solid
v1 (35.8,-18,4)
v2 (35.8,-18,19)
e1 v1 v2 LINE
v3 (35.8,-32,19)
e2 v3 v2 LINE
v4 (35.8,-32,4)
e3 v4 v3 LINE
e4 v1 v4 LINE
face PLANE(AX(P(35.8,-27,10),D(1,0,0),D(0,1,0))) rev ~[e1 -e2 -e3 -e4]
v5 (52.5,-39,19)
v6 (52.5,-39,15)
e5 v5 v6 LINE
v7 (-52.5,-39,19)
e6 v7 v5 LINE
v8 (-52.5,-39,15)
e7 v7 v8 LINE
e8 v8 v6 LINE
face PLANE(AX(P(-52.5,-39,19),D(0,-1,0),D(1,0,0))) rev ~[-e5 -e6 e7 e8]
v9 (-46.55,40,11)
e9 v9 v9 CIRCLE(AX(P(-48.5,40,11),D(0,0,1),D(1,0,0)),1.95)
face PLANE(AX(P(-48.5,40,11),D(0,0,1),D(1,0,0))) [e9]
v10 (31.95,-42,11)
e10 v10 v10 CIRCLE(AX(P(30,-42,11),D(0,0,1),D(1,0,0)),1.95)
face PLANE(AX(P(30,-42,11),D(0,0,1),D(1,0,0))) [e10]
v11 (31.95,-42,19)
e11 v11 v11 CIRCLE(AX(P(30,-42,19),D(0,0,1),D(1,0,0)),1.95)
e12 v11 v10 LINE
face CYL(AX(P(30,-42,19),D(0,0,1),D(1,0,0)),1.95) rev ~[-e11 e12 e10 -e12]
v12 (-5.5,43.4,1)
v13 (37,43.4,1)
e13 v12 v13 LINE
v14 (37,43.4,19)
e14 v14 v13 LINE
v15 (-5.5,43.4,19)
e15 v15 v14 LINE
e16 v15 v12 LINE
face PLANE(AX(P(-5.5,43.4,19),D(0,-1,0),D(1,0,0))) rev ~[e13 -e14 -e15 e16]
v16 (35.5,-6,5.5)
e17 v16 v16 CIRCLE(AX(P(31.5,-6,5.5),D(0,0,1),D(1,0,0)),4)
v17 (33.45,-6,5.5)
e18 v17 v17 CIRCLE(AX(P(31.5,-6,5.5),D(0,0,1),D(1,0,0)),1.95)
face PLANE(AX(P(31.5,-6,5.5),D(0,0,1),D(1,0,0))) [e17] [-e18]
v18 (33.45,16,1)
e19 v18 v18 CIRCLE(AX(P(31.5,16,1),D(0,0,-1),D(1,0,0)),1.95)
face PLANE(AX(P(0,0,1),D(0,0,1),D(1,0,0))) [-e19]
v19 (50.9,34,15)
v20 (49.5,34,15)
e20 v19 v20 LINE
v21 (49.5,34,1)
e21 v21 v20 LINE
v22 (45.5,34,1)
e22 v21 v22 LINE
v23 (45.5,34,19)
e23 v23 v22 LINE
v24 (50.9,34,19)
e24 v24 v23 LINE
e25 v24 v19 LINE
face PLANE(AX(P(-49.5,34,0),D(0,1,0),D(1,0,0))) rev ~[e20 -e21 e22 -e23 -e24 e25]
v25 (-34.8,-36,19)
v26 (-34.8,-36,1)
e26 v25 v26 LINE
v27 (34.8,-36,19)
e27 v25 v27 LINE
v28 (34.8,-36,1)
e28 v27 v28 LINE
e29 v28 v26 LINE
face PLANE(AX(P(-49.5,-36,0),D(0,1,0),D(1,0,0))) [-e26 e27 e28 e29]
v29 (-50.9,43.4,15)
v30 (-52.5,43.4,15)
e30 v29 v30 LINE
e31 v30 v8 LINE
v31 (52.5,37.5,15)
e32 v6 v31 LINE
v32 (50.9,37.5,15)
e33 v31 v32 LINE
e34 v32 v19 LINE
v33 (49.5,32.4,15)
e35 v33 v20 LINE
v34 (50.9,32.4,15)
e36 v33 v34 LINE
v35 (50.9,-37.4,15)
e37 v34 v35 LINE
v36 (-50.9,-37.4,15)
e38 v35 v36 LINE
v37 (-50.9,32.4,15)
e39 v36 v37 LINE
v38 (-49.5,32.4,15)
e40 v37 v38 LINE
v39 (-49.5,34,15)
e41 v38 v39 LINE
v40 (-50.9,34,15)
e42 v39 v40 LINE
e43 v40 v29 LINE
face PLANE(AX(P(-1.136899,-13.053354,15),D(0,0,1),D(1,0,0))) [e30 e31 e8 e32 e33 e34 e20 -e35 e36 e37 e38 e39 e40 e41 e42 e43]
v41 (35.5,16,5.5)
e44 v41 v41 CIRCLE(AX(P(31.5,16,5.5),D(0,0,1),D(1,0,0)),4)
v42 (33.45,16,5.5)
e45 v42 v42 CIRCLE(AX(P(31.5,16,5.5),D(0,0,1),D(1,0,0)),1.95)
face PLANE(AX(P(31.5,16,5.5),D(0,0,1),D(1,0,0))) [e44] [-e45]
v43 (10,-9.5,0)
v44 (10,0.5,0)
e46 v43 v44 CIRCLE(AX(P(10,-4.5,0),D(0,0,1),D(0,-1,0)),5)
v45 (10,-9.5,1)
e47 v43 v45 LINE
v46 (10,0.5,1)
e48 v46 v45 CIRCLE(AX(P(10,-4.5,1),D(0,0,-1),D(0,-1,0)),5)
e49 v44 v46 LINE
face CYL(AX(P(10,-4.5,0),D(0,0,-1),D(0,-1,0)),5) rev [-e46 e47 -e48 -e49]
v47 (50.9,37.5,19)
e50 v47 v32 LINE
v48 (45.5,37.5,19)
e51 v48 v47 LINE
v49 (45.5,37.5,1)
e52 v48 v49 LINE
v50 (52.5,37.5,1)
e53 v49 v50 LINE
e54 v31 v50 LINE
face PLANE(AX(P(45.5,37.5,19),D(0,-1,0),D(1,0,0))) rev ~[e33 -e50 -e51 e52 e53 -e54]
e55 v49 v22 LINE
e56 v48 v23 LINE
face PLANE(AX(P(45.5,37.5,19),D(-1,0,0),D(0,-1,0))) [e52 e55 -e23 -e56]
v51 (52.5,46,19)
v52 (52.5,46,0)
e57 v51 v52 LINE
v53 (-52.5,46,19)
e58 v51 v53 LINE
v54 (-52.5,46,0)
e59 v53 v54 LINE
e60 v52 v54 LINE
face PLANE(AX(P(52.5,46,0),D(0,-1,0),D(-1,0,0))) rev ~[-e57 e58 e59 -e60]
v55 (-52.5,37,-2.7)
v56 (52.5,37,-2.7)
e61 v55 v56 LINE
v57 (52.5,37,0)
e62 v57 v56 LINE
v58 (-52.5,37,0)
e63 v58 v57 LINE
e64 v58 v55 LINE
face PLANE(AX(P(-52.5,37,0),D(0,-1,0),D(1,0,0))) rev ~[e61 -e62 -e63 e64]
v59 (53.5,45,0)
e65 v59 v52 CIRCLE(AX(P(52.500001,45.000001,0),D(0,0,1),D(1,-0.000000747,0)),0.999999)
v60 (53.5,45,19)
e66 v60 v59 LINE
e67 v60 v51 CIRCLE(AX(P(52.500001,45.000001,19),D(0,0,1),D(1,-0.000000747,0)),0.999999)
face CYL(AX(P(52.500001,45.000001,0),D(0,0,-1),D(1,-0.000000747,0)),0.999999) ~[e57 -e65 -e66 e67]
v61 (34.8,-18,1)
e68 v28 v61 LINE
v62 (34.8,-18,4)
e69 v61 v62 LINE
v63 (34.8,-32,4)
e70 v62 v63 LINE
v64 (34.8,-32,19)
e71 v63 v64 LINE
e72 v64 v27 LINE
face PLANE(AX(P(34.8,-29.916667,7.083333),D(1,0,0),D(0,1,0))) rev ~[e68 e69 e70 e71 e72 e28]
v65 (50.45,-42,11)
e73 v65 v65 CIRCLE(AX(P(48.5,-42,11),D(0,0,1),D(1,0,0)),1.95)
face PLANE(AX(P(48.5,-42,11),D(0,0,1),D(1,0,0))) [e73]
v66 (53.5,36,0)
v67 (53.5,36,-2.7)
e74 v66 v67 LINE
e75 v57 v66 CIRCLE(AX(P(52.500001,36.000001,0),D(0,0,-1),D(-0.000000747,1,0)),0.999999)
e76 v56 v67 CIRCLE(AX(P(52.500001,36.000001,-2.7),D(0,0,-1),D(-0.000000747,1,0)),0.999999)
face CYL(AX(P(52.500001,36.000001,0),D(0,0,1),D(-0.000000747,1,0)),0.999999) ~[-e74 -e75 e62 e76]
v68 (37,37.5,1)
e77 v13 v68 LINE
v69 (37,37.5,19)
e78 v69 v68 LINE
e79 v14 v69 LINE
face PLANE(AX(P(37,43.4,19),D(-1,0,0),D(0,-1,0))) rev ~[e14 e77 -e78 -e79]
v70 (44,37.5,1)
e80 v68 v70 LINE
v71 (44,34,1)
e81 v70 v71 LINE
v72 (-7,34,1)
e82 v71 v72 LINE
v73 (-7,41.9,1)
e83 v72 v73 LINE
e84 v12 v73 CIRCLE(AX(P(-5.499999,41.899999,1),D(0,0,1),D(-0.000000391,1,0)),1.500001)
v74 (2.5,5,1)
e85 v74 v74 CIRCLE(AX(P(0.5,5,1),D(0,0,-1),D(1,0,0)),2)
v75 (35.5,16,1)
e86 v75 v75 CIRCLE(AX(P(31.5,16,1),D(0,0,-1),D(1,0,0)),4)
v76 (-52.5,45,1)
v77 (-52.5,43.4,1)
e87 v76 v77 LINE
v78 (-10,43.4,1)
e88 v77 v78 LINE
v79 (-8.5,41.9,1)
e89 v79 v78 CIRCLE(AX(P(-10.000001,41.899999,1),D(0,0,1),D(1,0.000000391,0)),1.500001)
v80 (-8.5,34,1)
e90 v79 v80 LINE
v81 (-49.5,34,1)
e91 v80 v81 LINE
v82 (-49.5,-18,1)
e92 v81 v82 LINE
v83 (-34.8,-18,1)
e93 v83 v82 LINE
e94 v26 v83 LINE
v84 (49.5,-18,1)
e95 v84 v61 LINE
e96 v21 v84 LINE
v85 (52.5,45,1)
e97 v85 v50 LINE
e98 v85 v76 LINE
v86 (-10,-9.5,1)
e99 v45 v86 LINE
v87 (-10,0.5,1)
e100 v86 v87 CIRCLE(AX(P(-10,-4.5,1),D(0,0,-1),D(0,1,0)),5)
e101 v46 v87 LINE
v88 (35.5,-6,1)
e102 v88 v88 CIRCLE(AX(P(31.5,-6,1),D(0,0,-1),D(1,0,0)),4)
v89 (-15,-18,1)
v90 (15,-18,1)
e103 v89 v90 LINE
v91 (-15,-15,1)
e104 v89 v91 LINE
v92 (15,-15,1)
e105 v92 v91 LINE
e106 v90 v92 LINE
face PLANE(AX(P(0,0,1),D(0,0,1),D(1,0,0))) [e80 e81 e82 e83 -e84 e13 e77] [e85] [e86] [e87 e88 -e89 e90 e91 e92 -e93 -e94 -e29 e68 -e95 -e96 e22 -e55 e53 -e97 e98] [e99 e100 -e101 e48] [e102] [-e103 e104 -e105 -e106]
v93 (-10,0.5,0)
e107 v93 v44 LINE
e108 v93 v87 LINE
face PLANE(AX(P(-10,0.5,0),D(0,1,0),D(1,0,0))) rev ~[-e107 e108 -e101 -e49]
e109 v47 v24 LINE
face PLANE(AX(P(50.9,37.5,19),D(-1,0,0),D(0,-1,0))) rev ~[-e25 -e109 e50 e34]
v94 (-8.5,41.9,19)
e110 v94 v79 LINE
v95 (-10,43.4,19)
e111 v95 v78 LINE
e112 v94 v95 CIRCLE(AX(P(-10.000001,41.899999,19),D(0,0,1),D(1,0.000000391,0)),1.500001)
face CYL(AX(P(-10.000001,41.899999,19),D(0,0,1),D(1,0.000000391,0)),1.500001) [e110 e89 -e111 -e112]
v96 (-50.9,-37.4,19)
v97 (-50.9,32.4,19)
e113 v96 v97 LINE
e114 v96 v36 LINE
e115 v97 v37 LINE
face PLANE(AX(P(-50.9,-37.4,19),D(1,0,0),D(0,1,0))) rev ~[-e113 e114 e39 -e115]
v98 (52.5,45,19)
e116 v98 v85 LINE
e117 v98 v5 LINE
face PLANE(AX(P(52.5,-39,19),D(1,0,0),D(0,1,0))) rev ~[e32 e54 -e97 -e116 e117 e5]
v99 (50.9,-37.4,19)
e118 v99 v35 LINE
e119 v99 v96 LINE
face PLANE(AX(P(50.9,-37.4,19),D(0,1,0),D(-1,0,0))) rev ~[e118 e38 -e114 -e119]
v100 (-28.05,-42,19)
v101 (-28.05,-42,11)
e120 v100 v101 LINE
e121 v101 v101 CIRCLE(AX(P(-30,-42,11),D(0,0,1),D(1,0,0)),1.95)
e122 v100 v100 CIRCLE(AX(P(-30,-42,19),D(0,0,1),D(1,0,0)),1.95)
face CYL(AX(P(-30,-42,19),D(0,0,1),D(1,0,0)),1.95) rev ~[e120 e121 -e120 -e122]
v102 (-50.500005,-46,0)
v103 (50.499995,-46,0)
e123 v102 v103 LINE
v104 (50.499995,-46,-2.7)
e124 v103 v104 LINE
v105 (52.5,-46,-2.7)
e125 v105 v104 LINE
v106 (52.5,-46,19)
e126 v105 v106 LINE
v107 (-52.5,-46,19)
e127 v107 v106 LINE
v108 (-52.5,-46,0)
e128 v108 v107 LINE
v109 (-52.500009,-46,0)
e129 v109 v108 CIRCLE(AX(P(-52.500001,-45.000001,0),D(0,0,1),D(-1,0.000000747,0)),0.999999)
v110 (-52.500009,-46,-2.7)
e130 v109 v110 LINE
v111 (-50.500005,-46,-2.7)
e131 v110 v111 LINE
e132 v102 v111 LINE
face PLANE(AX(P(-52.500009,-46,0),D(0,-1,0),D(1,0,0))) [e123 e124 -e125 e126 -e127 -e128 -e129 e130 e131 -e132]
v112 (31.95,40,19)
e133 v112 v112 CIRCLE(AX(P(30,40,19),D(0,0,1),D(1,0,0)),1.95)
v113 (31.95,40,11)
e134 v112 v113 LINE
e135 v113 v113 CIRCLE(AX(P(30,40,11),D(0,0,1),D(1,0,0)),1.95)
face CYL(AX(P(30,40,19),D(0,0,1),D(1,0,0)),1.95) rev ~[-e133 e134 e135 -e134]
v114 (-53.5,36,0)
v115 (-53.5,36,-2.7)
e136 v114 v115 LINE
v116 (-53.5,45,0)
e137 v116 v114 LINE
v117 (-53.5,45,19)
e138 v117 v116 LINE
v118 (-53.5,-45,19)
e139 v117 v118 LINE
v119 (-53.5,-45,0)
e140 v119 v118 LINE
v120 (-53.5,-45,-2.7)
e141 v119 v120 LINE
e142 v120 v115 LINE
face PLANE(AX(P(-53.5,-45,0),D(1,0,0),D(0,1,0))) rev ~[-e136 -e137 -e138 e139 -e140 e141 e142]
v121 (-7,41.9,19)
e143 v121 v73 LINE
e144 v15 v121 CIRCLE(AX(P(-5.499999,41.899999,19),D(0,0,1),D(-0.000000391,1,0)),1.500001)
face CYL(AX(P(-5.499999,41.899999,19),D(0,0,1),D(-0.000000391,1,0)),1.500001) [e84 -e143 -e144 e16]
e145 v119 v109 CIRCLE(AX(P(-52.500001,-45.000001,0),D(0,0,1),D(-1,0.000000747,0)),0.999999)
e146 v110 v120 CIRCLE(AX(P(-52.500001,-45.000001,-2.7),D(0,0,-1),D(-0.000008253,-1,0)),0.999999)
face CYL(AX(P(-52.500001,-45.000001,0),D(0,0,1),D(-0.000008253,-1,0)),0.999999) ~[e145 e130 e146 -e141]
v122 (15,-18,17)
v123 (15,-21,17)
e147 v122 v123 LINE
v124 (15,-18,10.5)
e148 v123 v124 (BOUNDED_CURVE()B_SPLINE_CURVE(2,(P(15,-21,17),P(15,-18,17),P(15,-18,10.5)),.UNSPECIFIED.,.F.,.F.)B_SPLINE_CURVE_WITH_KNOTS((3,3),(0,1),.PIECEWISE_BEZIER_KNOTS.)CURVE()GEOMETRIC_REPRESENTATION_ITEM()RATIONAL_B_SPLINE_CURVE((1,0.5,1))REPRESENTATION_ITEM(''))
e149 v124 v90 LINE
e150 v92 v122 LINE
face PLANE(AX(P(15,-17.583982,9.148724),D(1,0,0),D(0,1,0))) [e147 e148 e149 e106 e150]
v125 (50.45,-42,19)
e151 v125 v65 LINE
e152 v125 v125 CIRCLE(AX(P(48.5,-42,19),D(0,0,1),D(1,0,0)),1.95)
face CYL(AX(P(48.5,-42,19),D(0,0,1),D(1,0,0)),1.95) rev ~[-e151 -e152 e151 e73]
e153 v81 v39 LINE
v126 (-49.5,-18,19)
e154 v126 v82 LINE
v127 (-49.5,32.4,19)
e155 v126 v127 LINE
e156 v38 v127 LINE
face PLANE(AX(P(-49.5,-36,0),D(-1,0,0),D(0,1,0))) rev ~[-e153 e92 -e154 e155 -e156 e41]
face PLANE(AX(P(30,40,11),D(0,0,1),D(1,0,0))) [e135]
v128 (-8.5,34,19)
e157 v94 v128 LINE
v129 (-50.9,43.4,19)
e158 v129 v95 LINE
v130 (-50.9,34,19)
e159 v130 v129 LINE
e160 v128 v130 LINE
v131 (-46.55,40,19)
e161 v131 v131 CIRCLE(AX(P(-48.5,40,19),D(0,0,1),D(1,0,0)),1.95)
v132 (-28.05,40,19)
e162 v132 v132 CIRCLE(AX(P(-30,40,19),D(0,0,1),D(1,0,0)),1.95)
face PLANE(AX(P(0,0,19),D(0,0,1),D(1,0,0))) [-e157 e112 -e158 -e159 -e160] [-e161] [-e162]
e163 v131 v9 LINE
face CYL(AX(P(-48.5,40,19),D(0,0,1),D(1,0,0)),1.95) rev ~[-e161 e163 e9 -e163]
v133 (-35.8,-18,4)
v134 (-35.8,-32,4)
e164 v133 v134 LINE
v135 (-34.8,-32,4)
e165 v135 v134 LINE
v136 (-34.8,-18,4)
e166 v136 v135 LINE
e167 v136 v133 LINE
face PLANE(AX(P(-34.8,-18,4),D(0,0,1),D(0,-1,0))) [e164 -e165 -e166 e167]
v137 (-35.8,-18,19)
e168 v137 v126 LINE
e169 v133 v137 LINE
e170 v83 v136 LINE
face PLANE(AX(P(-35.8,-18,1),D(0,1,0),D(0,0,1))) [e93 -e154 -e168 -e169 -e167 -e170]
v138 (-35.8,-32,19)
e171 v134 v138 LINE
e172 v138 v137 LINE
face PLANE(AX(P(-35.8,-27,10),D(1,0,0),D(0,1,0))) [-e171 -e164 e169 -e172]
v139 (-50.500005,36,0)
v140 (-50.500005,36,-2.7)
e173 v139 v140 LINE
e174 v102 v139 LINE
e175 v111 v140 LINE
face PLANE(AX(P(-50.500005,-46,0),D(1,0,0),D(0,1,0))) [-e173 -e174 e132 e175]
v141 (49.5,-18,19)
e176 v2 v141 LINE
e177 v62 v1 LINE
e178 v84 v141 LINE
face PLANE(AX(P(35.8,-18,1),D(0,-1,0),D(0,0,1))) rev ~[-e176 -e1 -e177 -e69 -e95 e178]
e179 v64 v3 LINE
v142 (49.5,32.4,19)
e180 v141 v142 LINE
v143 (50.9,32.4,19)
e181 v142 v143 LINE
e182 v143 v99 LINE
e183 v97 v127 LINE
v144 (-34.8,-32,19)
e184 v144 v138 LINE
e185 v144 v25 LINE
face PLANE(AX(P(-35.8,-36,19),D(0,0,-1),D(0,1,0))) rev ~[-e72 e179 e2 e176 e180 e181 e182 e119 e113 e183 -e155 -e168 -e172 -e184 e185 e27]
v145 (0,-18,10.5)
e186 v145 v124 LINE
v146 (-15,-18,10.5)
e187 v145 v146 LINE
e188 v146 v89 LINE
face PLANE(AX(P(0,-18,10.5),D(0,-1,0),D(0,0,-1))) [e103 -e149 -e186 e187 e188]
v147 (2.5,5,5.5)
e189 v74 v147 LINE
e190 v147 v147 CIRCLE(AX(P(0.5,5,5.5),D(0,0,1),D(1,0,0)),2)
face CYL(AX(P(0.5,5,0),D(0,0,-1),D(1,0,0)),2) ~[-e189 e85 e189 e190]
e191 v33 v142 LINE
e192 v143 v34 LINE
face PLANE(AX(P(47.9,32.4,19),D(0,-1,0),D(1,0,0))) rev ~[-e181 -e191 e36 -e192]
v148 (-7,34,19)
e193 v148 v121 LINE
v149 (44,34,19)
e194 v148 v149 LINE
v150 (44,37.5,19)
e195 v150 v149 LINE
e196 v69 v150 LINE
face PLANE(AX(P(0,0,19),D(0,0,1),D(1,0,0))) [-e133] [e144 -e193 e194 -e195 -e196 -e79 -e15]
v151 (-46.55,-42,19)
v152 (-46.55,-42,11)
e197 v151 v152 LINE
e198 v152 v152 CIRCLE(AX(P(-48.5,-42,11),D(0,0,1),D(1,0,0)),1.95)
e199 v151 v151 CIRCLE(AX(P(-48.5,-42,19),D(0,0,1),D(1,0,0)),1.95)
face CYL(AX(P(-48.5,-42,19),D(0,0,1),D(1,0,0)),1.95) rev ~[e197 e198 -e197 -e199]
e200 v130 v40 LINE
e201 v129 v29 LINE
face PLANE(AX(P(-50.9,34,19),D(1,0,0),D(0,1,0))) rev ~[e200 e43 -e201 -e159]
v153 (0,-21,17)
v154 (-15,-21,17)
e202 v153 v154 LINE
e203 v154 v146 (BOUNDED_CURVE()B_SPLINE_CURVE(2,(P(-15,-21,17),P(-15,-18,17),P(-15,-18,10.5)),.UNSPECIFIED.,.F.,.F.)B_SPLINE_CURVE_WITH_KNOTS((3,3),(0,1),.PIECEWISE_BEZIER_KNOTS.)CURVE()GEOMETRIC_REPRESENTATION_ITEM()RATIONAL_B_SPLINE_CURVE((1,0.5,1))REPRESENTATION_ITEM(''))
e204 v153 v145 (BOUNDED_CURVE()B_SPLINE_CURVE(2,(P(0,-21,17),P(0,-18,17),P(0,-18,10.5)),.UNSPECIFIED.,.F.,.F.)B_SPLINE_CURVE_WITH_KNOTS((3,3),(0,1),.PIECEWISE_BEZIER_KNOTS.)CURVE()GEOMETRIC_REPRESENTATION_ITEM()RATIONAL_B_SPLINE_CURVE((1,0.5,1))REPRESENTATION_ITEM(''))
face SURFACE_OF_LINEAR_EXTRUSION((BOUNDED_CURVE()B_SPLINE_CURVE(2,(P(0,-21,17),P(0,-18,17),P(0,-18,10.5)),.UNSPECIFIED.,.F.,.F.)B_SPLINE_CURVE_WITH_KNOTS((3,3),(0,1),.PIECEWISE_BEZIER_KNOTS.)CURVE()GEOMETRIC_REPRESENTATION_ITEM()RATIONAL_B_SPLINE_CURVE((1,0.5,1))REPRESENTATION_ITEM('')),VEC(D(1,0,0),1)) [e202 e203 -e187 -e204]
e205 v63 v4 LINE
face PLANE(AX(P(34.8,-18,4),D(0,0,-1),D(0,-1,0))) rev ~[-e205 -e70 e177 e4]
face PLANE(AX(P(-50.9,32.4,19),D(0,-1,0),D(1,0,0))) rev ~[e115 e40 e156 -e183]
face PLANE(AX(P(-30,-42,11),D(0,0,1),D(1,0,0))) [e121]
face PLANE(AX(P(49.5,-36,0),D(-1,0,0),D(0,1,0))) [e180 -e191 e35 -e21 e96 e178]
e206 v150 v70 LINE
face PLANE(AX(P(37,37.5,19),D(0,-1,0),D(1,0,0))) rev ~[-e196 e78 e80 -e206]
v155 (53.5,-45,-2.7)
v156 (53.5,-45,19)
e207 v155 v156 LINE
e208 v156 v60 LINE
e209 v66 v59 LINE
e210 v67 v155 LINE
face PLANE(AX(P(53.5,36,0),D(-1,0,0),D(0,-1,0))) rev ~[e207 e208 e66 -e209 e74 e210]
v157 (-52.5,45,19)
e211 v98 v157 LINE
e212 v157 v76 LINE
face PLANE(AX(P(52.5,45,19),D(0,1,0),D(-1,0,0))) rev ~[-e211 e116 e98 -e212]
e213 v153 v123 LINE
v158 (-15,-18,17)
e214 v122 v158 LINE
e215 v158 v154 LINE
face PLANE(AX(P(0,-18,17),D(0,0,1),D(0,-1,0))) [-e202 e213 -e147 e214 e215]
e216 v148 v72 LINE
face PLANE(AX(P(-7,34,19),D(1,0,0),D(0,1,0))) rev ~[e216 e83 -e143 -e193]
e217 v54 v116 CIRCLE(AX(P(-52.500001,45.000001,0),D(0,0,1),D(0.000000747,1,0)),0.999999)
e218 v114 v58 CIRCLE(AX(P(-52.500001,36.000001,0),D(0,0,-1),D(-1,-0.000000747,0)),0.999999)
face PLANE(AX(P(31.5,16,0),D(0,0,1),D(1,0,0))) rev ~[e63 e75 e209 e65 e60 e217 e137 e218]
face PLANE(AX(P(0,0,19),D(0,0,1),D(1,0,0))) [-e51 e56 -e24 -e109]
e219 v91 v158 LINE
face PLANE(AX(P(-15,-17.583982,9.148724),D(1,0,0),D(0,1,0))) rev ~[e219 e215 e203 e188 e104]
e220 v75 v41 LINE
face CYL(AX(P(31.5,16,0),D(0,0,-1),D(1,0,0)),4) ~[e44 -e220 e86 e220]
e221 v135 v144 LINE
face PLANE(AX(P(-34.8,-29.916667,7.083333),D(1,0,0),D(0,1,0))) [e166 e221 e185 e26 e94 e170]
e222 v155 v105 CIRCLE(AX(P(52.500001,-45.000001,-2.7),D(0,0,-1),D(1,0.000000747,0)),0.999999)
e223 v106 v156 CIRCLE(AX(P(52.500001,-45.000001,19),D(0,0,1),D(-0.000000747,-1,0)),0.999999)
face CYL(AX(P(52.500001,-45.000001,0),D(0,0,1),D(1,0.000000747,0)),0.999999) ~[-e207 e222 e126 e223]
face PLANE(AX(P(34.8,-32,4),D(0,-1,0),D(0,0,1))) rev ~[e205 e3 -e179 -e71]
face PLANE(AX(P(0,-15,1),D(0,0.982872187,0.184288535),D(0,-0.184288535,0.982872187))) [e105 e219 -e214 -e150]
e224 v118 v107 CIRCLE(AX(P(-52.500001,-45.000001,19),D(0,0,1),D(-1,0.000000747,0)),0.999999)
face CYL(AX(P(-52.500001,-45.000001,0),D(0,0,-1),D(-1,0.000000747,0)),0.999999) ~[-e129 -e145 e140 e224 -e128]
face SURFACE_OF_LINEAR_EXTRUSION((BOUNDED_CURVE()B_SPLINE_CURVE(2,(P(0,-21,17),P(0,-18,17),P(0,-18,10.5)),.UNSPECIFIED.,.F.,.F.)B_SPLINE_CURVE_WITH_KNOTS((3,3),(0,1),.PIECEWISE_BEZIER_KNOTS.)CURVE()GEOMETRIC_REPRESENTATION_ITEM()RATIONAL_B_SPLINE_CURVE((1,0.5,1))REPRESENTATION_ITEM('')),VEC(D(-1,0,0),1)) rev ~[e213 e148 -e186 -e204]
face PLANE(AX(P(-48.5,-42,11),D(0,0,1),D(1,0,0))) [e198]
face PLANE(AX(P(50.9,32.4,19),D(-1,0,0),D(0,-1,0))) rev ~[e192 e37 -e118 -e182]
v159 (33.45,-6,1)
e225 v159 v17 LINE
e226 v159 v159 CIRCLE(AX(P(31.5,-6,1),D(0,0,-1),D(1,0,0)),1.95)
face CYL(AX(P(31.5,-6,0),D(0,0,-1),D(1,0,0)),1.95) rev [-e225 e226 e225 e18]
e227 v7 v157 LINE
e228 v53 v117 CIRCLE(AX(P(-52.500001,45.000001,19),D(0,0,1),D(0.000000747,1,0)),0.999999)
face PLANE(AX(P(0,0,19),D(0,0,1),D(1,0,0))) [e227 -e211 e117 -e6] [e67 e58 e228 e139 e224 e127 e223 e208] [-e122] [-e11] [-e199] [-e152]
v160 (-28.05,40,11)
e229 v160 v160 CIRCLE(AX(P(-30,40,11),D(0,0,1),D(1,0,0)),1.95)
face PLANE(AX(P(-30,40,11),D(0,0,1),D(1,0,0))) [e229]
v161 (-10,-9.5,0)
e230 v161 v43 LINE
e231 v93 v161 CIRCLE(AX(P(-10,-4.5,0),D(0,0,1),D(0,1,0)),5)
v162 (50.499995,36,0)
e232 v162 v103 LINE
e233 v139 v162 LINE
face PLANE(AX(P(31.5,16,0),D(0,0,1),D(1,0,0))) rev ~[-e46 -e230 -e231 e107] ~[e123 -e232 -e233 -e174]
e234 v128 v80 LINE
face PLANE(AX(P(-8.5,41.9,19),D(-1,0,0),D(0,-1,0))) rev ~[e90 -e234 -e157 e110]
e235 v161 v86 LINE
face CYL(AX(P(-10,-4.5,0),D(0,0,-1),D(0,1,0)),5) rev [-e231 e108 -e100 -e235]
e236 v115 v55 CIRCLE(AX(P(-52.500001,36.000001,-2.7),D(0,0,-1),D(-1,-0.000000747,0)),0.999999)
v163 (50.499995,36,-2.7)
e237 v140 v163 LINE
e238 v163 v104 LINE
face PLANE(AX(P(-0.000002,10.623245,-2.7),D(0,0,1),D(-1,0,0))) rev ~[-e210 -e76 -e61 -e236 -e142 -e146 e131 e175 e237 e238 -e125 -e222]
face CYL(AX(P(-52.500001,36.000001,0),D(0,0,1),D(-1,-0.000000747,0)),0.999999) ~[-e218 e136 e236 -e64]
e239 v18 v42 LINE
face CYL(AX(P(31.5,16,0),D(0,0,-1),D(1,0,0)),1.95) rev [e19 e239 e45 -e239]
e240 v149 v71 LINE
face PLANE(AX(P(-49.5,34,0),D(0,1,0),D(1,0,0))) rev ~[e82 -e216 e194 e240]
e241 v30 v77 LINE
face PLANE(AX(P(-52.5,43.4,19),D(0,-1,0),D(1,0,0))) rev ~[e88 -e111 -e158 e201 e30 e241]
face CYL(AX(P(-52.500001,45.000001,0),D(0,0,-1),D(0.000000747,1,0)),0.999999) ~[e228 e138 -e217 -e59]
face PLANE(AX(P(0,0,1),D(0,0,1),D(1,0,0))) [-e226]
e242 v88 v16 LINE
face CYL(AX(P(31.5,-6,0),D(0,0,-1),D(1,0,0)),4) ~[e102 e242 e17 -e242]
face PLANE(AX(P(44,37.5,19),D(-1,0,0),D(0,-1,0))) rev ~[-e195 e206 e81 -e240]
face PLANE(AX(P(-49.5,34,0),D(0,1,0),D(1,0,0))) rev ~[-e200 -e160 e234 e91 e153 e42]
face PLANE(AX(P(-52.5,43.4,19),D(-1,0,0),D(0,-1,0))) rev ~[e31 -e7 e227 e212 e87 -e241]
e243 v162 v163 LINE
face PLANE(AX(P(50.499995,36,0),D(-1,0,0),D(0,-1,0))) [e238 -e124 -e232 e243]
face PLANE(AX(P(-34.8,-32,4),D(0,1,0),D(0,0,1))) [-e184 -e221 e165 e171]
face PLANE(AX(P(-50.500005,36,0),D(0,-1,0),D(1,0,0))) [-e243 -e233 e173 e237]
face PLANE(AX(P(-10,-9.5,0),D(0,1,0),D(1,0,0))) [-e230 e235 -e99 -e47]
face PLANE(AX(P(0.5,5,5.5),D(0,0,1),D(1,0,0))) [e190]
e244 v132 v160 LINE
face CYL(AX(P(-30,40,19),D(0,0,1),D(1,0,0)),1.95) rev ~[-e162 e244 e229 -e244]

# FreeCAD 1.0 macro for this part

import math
import FreeCAD as App
import Part
import Sketcher
Q = App.Units.Quantity


def add_polygon(sketch, points):
    """Adds a closed chain of lines whose ends are joined by coincident constraints."""
    first, n = sketch.GeometryCount, len(points)
    for a, b in zip(points, points[1:] + points[:1]):
        sketch.addGeometry(Part.LineSegment(App.Vector(*a, 0), App.Vector(*b, 0)), False)
    for i in range(n):
        sketch.addConstraint(Sketcher.Constraint("Coincident", first + i, 2, first + (i + 1) % n, 1))

doc = App.newDocument("Part")
body = doc.addObject("PartDesign::Body", "Body")

sketch1 = body.newObject("Sketcher::SketchObject", "Sketch")
sketch1.AttachmentSupport = (doc.getObject("XY_Plane"), [""])
sketch1.MapMode = "FlatFace"
sketch1.addGeometry([
    Part.LineSegment(App.Vector(-53.5, 45, 0), App.Vector(-53.5, -45, 0)),
    Part.ArcOfCircle(Part.Circle(App.Vector(-52.500001, -45.000001, 0), App.Vector(0, 0, 1), 0.999999), math.radians(179.999957), math.radians(270.000043)),
    Part.LineSegment(App.Vector(-52.5, -46, 0), App.Vector(52.5, -46, 0)),
    Part.ArcOfCircle(Part.Circle(App.Vector(52.500001, -45.000001, 0), App.Vector(0, 0, 1), 0.999999), math.radians(-90.000043), math.radians(0.000043)),
    Part.LineSegment(App.Vector(53.5, -45, 0), App.Vector(53.5, 45, 0)),
    Part.ArcOfCircle(Part.Circle(App.Vector(52.500001, 45.000001, 0), App.Vector(0, 0, 1), 0.999999), math.radians(-0.000043), math.radians(90.000043)),
    Part.LineSegment(App.Vector(52.5, 46, 0), App.Vector(-52.5, 46, 0)),
    Part.ArcOfCircle(Part.Circle(App.Vector(-52.500001, 45.000001, 0), App.Vector(0, 0, 1), 0.999999), math.radians(89.999957), math.radians(180.000043)),
], False)
sketch1.addConstraint([
    Sketcher.Constraint("Tangent", 0, 2, 1, 1),
    Sketcher.Constraint("Tangent", 1, 2, 2, 1),
    Sketcher.Constraint("Tangent", 2, 2, 3, 1),
    Sketcher.Constraint("Tangent", 3, 2, 4, 1),
    Sketcher.Constraint("Tangent", 4, 2, 5, 1),
    Sketcher.Constraint("Tangent", 5, 2, 6, 1),
    Sketcher.Constraint("Tangent", 6, 2, 7, 1),
    Sketcher.Constraint("Tangent", 7, 2, 0, 1),
    Sketcher.Constraint("Vertical", 0),
    Sketcher.Constraint("Horizontal", 2),
    Sketcher.Constraint("Vertical", 4),
    Sketcher.Constraint("Horizontal", 6),
    Sketcher.Constraint("Equal", 1, 3),
    Sketcher.Constraint("Equal", 3, 5),
    Sketcher.Constraint("Equal", 5, 7),
    Sketcher.Constraint("Symmetric", 1, 3, 5, 3, -1, 1),
    Sketcher.Constraint("Radius", 1, Q("0.999999 mm")),
    Sketcher.Constraint("DistanceX", 2, 1, 2, 2, Q("105 mm")),
    Sketcher.Constraint("DistanceY", 0, 2, 0, 1, Q("90 mm")),
])
pad1 = body.newObject("PartDesign::Pad", "Pad")
pad1.Profile = sketch1
pad1.Length = 1

sketch2 = body.newObject("Sketcher::SketchObject", "Sketch001")
sketch2.AttachmentSupport = (doc.getObject("XY_Plane"), [""])
sketch2.MapMode = "FlatFace"
sketch2.addGeometry(Part.LineSegment(App.Vector(-53.5, 45, 0), App.Vector(-53.5, -45, 0)), False)
sketch2.addGeometry(Part.ArcOfCircle(Part.Circle(App.Vector(-52.500001, -45.000001, 0), App.Vector(0, 0, 1), 0.999999), math.radians(179.999957), math.radians(270.000043)), False)
sketch2.addGeometry(Part.LineSegment(App.Vector(-52.5, -46, 0), App.Vector(52.5, -46, 0)), False)
sketch2.addGeometry(Part.ArcOfCircle(Part.Circle(App.Vector(52.500001, -45.000001, 0), App.Vector(0, 0, 1), 0.999999), math.radians(-90.000043), math.radians(0.000043)), False)
sketch2.addGeometry(Part.LineSegment(App.Vector(53.5, -45, 0), App.Vector(53.5, 45, 0)), False)
sketch2.addGeometry(Part.ArcOfCircle(Part.Circle(App.Vector(52.500001, 45.000001, 0), App.Vector(0, 0, 1), 0.999999), math.radians(-0.000043), math.radians(90.000043)), False)
sketch2.addGeometry(Part.LineSegment(App.Vector(52.5, 46, 0), App.Vector(-52.5, 46, 0)), False)
sketch2.addGeometry(Part.ArcOfCircle(Part.Circle(App.Vector(-52.500001, 45.000001, 0), App.Vector(0, 0, 1), 0.999999), math.radians(89.999957), math.radians(180.000043)), False)
add_polygon(sketch2, [(49.5, -36), (-49.5, -36), (-49.5, 34), (49.5, 34)])
sketch2.addConstraint([
    Sketcher.Constraint("Tangent", 0, 2, 1, 1),
    Sketcher.Constraint("Tangent", 1, 2, 2, 1),
    Sketcher.Constraint("Tangent", 2, 2, 3, 1),
    Sketcher.Constraint("Tangent", 3, 2, 4, 1),
    Sketcher.Constraint("Tangent", 4, 2, 5, 1),
    Sketcher.Constraint("Tangent", 5, 2, 6, 1),
    Sketcher.Constraint("Tangent", 6, 2, 7, 1),
    Sketcher.Constraint("Tangent", 7, 2, 0, 1),
    Sketcher.Constraint("Vertical", 0),
    Sketcher.Constraint("Horizontal", 2),
    Sketcher.Constraint("Vertical", 4),
    Sketcher.Constraint("Horizontal", 6),
    Sketcher.Constraint("Horizontal", 8),
    Sketcher.Constraint("Vertical", 9),
    Sketcher.Constraint("Horizontal", 10),
    Sketcher.Constraint("Vertical", 11),
    Sketcher.Constraint("Equal", 1, 3),
    Sketcher.Constraint("Equal", 3, 5),
    Sketcher.Constraint("Equal", 5, 7),
    Sketcher.Constraint("Symmetric", 1, 3, 5, 3, -1, 1),
    Sketcher.Constraint("Radius", 1, Q("0.999999 mm")),
    Sketcher.Constraint("DistanceX", 2, 1, 2, 2, Q("105 mm")),
    Sketcher.Constraint("DistanceX", 8, 2, 8, 1, Q("99 mm")),
    Sketcher.Constraint("DistanceY", 0, 2, 0, 1, Q("90 mm")),
    Sketcher.Constraint("DistanceY", 9, 1, 9, 2, Q("70 mm")),
    Sketcher.Constraint("DistanceY", 8, 2, -1, 1, Q("36 mm")),
    Sketcher.Constraint("DistanceX", 1, 3, 8, 2, Q("3.000001 mm")),
])
pad2 = body.newObject("PartDesign::Pad", "Pad001")
pad2.Profile = sketch2
pad2.Length = 19

sketch3 = body.newObject("Sketcher::SketchObject", "Sketch002")
sketch3.AttachmentSupport = (doc.getObject("XY_Plane"), [""])
sketch3.MapMode = "FlatFace"
sketch3.AttachmentOffset = App.Placement(App.Vector(0, 0, 19), App.Rotation())
sketch3.addGeometry([
    Part.LineSegment(App.Vector(-52.5, 45, 0), App.Vector(-52.5, 43.4, 0)),
    Part.LineSegment(App.Vector(-52.5, 43.4, 0), App.Vector(-10, 43.4, 0)),
    Part.ArcOfCircle(Part.Circle(App.Vector(-10.000001, 41.899999, 0), App.Vector(0, 0, 1), 1.500001), math.radians(0.000022), math.radians(89.999978)),
    Part.LineSegment(App.Vector(-8.5, 41.9, 0), App.Vector(-8.5, 34, 0)),
    Part.LineSegment(App.Vector(-8.5, 34, 0), App.Vector(-7, 34, 0)),
    Part.LineSegment(App.Vector(-7, 34, 0), App.Vector(-7, 41.9, 0)),
    Part.ArcOfCircle(Part.Circle(App.Vector(-5.499999, 41.899999, 0), App.Vector(0, 0, 1), 1.500001), math.radians(90.000022), math.radians(179.999978)),
    Part.LineSegment(App.Vector(-5.5, 43.4, 0), App.Vector(37, 43.4, 0)),
    Part.LineSegment(App.Vector(37, 43.4, 0), App.Vector(37, 37.5, 0)),
    Part.LineSegment(App.Vector(37, 37.5, 0), App.Vector(44, 37.5, 0)),
    Part.LineSegment(App.Vector(44, 37.5, 0), App.Vector(44, 34, 0)),
    Part.LineSegment(App.Vector(44, 34, 0), App.Vector(45.5, 34, 0)),
    Part.LineSegment(App.Vector(45.5, 34, 0), App.Vector(45.5, 37.5, 0)),
    Part.LineSegment(App.Vector(45.5, 37.5, 0), App.Vector(52.5, 37.5, 0)),
    Part.LineSegment(App.Vector(52.5, 37.5, 0), App.Vector(52.5, 45, 0)),
    Part.LineSegment(App.Vector(52.5, 45, 0), App.Vector(-52.5, 45, 0)),
], False)
sketch3.addConstraint([
    Sketcher.Constraint("Coincident", 0, 2, 1, 1),
    Sketcher.Constraint("Tangent", 1, 2, 2, 2),
    Sketcher.Constraint("Tangent", 2, 1, 3, 1),
    Sketcher.Constraint("Coincident", 3, 2, 4, 1),
    Sketcher.Constraint("Coincident", 4, 2, 5, 1),
    Sketcher.Constraint("Tangent", 5, 2, 6, 2),
    Sketcher.Constraint("Tangent", 6, 1, 7, 1),
    Sketcher.Constraint("Coincident", 7, 2, 8, 1),
    Sketcher.Constraint("Coincident", 8, 2, 9, 1),
    Sketcher.Constraint("Coincident", 9, 2, 10, 1),
    Sketcher.Constraint("Coincident", 10, 2, 11, 1),
    Sketcher.Constraint("Coincident", 11, 2, 12, 1),
    Sketcher.Constraint("Coincident", 12, 2, 13, 1),
    Sketcher.Constraint("Coincident", 13, 2, 14, 1),
    Sketcher.Constraint("Coincident", 14, 2, 15, 1),
    Sketcher.Constraint("Coincident", 15, 2, 0, 1),
    Sketcher.Constraint("Vertical", 0),
    Sketcher.Constraint("Horizontal", 1),
    Sketcher.Constraint("Vertical", 3),
    Sketcher.Constraint("Horizontal", 4),
    Sketcher.Constraint("Vertical", 5),
    Sketcher.Constraint("Horizontal", 7),
    Sketcher.Constraint("Vertical", 8),
    Sketcher.Constraint("Horizontal", 9),
    Sketcher.Constraint("Vertical", 10),
    Sketcher.Constraint("Horizontal", 11),
    Sketcher.Constraint("Vertical", 12),
    Sketcher.Constraint("Horizontal", 13),
    Sketcher.Constraint("Vertical", 14),
    Sketcher.Constraint("Horizontal", 15),
    Sketcher.Constraint("Equal", 2, 6),
    Sketcher.Constraint("Horizontal", 2, 3, 6, 3),
    Sketcher.Constraint("Horizontal", 4, 2, 10, 2),
    Sketcher.Constraint("Horizontal", 9, 2, 12, 2),
    Sketcher.Constraint("Equal", 1, 7),
    Sketcher.Constraint("Equal", 4, 11),
    Sketcher.Constraint("Equal", 9, 13),
    Sketcher.Constraint("Radius", 2, Q("1.500001 mm")),
    Sketcher.Constraint("DistanceX", 9, 1, 9, 2, Q("7 mm")),
    Sketcher.Constraint("DistanceX", 15, 2, 15, 1, Q("105 mm")),
    Sketcher.Constraint("DistanceX", 1, 1, 1, 2, Q("42.5 mm")),
    Sketcher.Constraint("DistanceY", 0, 2, 0, 1, Q("1.6 mm")),
    Sketcher.Constraint("DistanceY", 3, 2, 3, 1, Q("7.9 mm")),
    Sketcher.Constraint("DistanceY", 8, 2, 8, 1, Q("5.9 mm")),
    Sketcher.Constraint("DistanceX", 2, 3, -1, 1, Q("10.000001 mm")),
    Sketcher.Constraint("DistanceY", -1, 1, 3, 2, Q("34 mm")),
])
pocket1 = body.newObject("PartDesign::Pocket", "Pocket")
pocket1.Profile = sketch3
pocket1.Length = 18

sketch4 = body.newObject("Sketcher::SketchObject", "Sketch003")
sketch4.AttachmentSupport = (doc.getObject("XY_Plane"), [""])
sketch4.MapMode = "FlatFace"
sketch4.addGeometry([
    Part.Circle(App.Vector(31.5, 16, 0), App.Vector(0, 0, 1), 4),
    Part.Circle(App.Vector(31.5, 16, 0), App.Vector(0, 0, 1), 1.95),
    Part.Circle(App.Vector(31.5, -6, 0), App.Vector(0, 0, 1), 4),
    Part.Circle(App.Vector(31.5, -6, 0), App.Vector(0, 0, 1), 1.95),
    Part.Circle(App.Vector(0.5, 5, 0), App.Vector(0, 0, 1), 2),
], False)
sketch4.addConstraint([
    Sketcher.Constraint("Coincident", 1, 3, 0, 3),
    Sketcher.Constraint("Coincident", 3, 3, 2, 3),
    Sketcher.Constraint("Equal", 0, 2),
    Sketcher.Constraint("Equal", 1, 3),
    Sketcher.Constraint("Vertical", 1, 3, 2, 3),
    Sketcher.Constraint("Diameter", 0, Q("8 mm")),
    Sketcher.Constraint("Diameter", 4, Q("4 mm")),
    Sketcher.Constraint("Diameter", 1, Q("3.9 mm")),
    Sketcher.Constraint("DistanceY", -1, 1, 0, 3, Q("16 mm")),
    Sketcher.Constraint("DistanceY", 2, 3, -1, 1, Q("6 mm")),
    Sketcher.Constraint("DistanceY", -1, 1, 4, 3, Q("5 mm")),
    Sketcher.Constraint("DistanceX", 4, 3, 0, 3, Q("31 mm")),
    Sketcher.Constraint("DistanceX", -1, 1, 0, 3, Q("31.5 mm")),
])
pad3 = body.newObject("PartDesign::Pad", "Pad002")
pad3.Profile = sketch4
pad3.Length = 5.5

sketch5 = body.newObject("Sketcher::SketchObject", "Sketch004")
sketch5.AttachmentSupport = (doc.getObject("XY_Plane"), [""])
sketch5.MapMode = "FlatFace"
sketch5.AttachmentOffset = App.Placement(App.Vector(0, 0, 19), App.Rotation())
sketch5.addGeometry([
    Part.Circle(App.Vector(-48.5, -42, 0), App.Vector(0, 0, 1), 1.95),
    Part.Circle(App.Vector(-30, -42, 0), App.Vector(0, 0, 1), 1.95),
    Part.Circle(App.Vector(30, -42, 0), App.Vector(0, 0, 1), 1.95),
    Part.Circle(App.Vector(-48.5, 40, 0), App.Vector(0, 0, 1), 1.95),
    Part.Circle(App.Vector(-30, 40, 0), App.Vector(0, 0, 1), 1.95),
    Part.Circle(App.Vector(30, 40, 0), App.Vector(0, 0, 1), 1.95),
    Part.Circle(App.Vector(48.5, -42, 0), App.Vector(0, 0, 1), 1.95),
], False)
sketch5.addConstraint([
    Sketcher.Constraint("Equal", 0, 1),
    Sketcher.Constraint("Equal", 1, 2),
    Sketcher.Constraint("Equal", 2, 3),
    Sketcher.Constraint("Equal", 3, 4),
    Sketcher.Constraint("Equal", 4, 5),
    Sketcher.Constraint("Equal", 5, 6),
    Sketcher.Constraint("Symmetric", 1, 3, 2, 3, -2),
    Sketcher.Constraint("Symmetric", 4, 3, 5, 3, -2),
    Sketcher.Constraint("Symmetric", 0, 3, 6, 3, -2),
    Sketcher.Constraint("Horizontal", 0, 3, 1, 3),
    Sketcher.Constraint("Horizontal", 3, 3, 4, 3),
    Sketcher.Constraint("Vertical", 0, 3, 3, 3),
    Sketcher.Constraint("Vertical", 1, 3, 4, 3),
    Sketcher.Constraint("Diameter", 0, Q("3.9 mm")),
    Sketcher.Constraint("DistanceY", 0, 3, -1, 1, Q("42 mm")),
    Sketcher.Constraint("DistanceX", 1, 3, -1, 1, Q("30 mm")),
    Sketcher.Constraint("DistanceY", -1, 1, 3, 3, Q("40 mm")),
    Sketcher.Constraint("DistanceX", 0, 3, 6, 3, Q("97 mm")),
])
pocket2 = body.newObject("PartDesign::Pocket", "Pocket001")
pocket2.Profile = sketch5
pocket2.Length = 8

sketch6 = body.newObject("Sketcher::SketchObject", "Sketch005")
sketch6.AttachmentSupport = (doc.getObject("XY_Plane"), [""])
sketch6.MapMode = "FlatFace"
sketch6.addGeometry([
    Part.LineSegment(App.Vector(50.499995, 36, 0), App.Vector(-50.500005, 36, 0)),
    Part.LineSegment(App.Vector(-50.500005, 36, 0), App.Vector(-50.500005, -46, 0)),
    Part.LineSegment(App.Vector(-50.500005, -46, 0), App.Vector(-52.500009, -46, 0)),
    Part.ArcOfCircle(Part.Circle(App.Vector(-52.500001, -45.000001, 0), App.Vector(0, 0, 1), 0.999999), math.radians(179.999957), math.radians(269.999527)),
    Part.LineSegment(App.Vector(-53.5, -45, 0), App.Vector(-53.5, 36, 0)),
    Part.ArcOfCircle(Part.Circle(App.Vector(-52.500001, 36.000001, 0), App.Vector(0, 0, 1), 0.999999), math.radians(89.999957), math.radians(180.000043)),
    Part.LineSegment(App.Vector(-52.5, 37, 0), App.Vector(52.5, 37, 0)),
    Part.ArcOfCircle(Part.Circle(App.Vector(52.500001, 36.000001, 0), App.Vector(0, 0, 1), 0.999999), math.radians(-0.000043), math.radians(90.000043)),
    Part.LineSegment(App.Vector(53.5, 36, 0), App.Vector(53.5, -45, 0)),
    Part.ArcOfCircle(Part.Circle(App.Vector(52.500001, -45.000001, 0), App.Vector(0, 0, 1), 0.999999), math.radians(-90.000043), math.radians(0.000043)),
    Part.LineSegment(App.Vector(52.5, -46, 0), App.Vector(50.499995, -46, 0)),
    Part.LineSegment(App.Vector(50.499995, -46, 0), App.Vector(50.499995, 36, 0)),
], False)
sketch6.addConstraint([
    Sketcher.Constraint("Coincident", 0, 2, 1, 1),
    Sketcher.Constraint("Coincident", 1, 2, 2, 1),
    Sketcher.Constraint("Coincident", 2, 2, 3, 2),
    Sketcher.Constraint("Tangent", 3, 1, 4, 1),
    Sketcher.Constraint("Tangent", 4, 2, 5, 2),
    Sketcher.Constraint("Tangent", 5, 1, 6, 1),
    Sketcher.Constraint("Tangent", 6, 2, 7, 2),
    Sketcher.Constraint("Tangent", 7, 1, 8, 1),
    Sketcher.Constraint("Tangent", 8, 2, 9, 2),
    Sketcher.Constraint("Tangent", 9, 1, 10, 1),
    Sketcher.Constraint("Coincident", 10, 2, 11, 1),
    Sketcher.Constraint("Coincident", 11, 2, 0, 1),
    Sketcher.Constraint("Horizontal", 0),
    Sketcher.Constraint("Vertical", 1),
    Sketcher.Constraint("Horizontal", 2),
    Sketcher.Constraint("Vertical", 4),
    Sketcher.Constraint("Horizontal", 6),
    Sketcher.Constraint("Vertical", 8),
    Sketcher.Constraint("Horizontal", 10),
    Sketcher.Constraint("Vertical", 11),
    Sketcher.Constraint("Equal", 3, 5),
    Sketcher.Constraint("Equal", 5, 7),
    Sketcher.Constraint("Equal", 7, 9),
    Sketcher.Constraint("Symmetric", 3, 3, 9, 3, -2),
    Sketcher.Constraint("Horizontal", 7, 3, 0, 2),
    Sketcher.Constraint("Equal", 2, 10),
    Sketcher.Constraint("Radius", 3, Q("0.999999 mm")),
    Sketcher.Constraint("DistanceX", 0, 2, 0, 1, Q("101 mm")),
    Sketcher.Constraint("DistanceX", 6, 1, 6, 2, Q("105 mm")),
    Sketcher.Constraint("DistanceY", 1, 2, 1, 1, Q("82 mm")),
    Sketcher.Constraint("DistanceY", 3, 3, -1, 1, Q("45.000001 mm")),
    Sketcher.Constraint("DistanceX", 2, 2, 2, 1, Q("2.000004 mm")),
])
pad4 = body.newObject("PartDesign::Pad", "Pad003")
pad4.Profile = sketch6
pad4.Length = 2.7
pad4.Reversed = True

sketch7 = body.newObject("Sketcher::SketchObject", "Sketch006")
sketch7.AttachmentSupport = (doc.getObject("XY_Plane"), [""])
sketch7.MapMode = "FlatFace"
sketch7.addGeometry([
    Part.ArcOfCircle(Part.Circle(App.Vector(-10, -4.5, 0), App.Vector(0, 0, 1), 5), math.radians(90), math.radians(270)),
    Part.LineSegment(App.Vector(-10, -9.5, 0), App.Vector(10, -9.5, 0)),
    Part.ArcOfCircle(Part.Circle(App.Vector(10, -4.5, 0), App.Vector(0, 0, 1), 5), math.radians(-90), math.radians(90)),
    Part.LineSegment(App.Vector(10, 0.5, 0), App.Vector(-10, 0.5, 0)),
], False)
sketch7.addConstraint([
    Sketcher.Constraint("Tangent", 0, 2, 1, 1),
    Sketcher.Constraint("Tangent", 1, 2, 2, 1),
    Sketcher.Constraint("Tangent", 2, 2, 3, 1),
    Sketcher.Constraint("Tangent", 3, 2, 0, 1),
    Sketcher.Constraint("Horizontal", 1),
    Sketcher.Constraint("Horizontal", 3),
    Sketcher.Constraint("Radius", 0, Q("5 mm")),
    Sketcher.Constraint("DistanceX", 1, 1, 1, 2, Q("20 mm")),
    Sketcher.Constraint("DistanceX", 0, 3, -1, 1, Q("10 mm")),
    Sketcher.Constraint("DistanceY", 0, 3, -1, 1, Q("4.5 mm")),
])
pocket3 = body.newObject("PartDesign::Pocket", "Pocket002")
pocket3.Profile = sketch7
pocket3.Length = 19
pocket3.Reversed = True

sketch8 = body.newObject("Sketcher::SketchObject", "Sketch007")
sketch8.AttachmentSupport = (doc.getObject("XY_Plane"), [""])
sketch8.MapMode = "FlatFace"
sketch8.AttachmentOffset = App.Placement(App.Vector(0, 0, 19), App.Rotation())
add_polygon(sketch8, [(-52.5, 43.4), (-52.5, -39), (52.5, -39), (52.5, 37.5), (50.9, 37.5), (50.9, 34), (47.9, 34), (47.9, 32.4), (50.9, 32.4), (50.9, -37.4), (-50.9, -37.4), (-50.9, 32.4), (-47.9, 32.4), (-47.9, 34), (-50.9, 34), (-50.9, 43.4)])
sketch8.addConstraint([
    Sketcher.Constraint("Vertical", 0),
    Sketcher.Constraint("Horizontal", 1),
    Sketcher.Constraint("Vertical", 2),
    Sketcher.Constraint("Horizontal", 3),
    Sketcher.Constraint("Vertical", 4),
    Sketcher.Constraint("Horizontal", 5),
    Sketcher.Constraint("Vertical", 6),
    Sketcher.Constraint("Horizontal", 7),
    Sketcher.Constraint("Vertical", 8),
    Sketcher.Constraint("Horizontal", 9),
    Sketcher.Constraint("Vertical", 10),
    Sketcher.Constraint("Horizontal", 11),
    Sketcher.Constraint("Vertical", 12),
    Sketcher.Constraint("Horizontal", 13),
    Sketcher.Constraint("Vertical", 14),
    Sketcher.Constraint("Horizontal", 15),
    Sketcher.Constraint("Symmetric", 7, 2, 10, 2, -2),
    Sketcher.Constraint("Symmetric", 5, 2, 12, 2, -2),
    Sketcher.Constraint("Vertical", 4, 2, 7, 2),
    Sketcher.Constraint("Vertical", 10, 2, 13, 2),
    Sketcher.Constraint("Equal", 3, 15),
    Sketcher.Constraint("Equal", 15, 6),
    Sketcher.Constraint("DistanceX", 1, 1, 1, 2, Q("105 mm")),
    Sketcher.Constraint("DistanceX", 5, 2, 5, 1, Q("3 mm")),
    Sketcher.Constraint("DistanceX", 3, 2, 3, 1, Q("1.6 mm")),
    Sketcher.Constraint("DistanceY", 0, 2, 0, 1, Q("82.4 mm")),
    Sketcher.Constraint("DistanceY", 2, 1, 2, 2, Q("76.5 mm")),
    Sketcher.Constraint("DistanceY", 4, 2, 4, 1, Q("3.5 mm")),
    Sketcher.Constraint("DistanceY", 8, 2, 8, 1, Q("69.8 mm")),
    Sketcher.Constraint("DistanceY", 0, 2, -1, 1, Q("39 mm")),
])
pocket4 = body.newObject("PartDesign::Pocket", "Pocket003")
pocket4.Profile = sketch8
pocket4.Length = 4

sketch9 = body.newObject("Sketcher::SketchObject", "Sketch008")
sketch9.AttachmentSupport = (doc.getObject("YZ_Plane"), [""])
sketch9.MapMode = "FlatFace"
sketch9.AttachmentOffset = App.Placement(App.Vector(0, 0, 34.8), App.Rotation())
add_polygon(sketch9, [(-36, 19), (-36, 1), (-18, 1), (-18, 4), (-32, 4), (-32, 19)])
sketch9.addConstraint([
    Sketcher.Constraint("Vertical", 0),
    Sketcher.Constraint("Horizontal", 1),
    Sketcher.Constraint("Vertical", 2),
    Sketcher.Constraint("Horizontal", 3),
    Sketcher.Constraint("Vertical", 4),
    Sketcher.Constraint("Horizontal", 5),
    Sketcher.Constraint("Equal", 1, 0),
    Sketcher.Constraint("DistanceX", 1, 1, 1, 2, Q("18 mm")),
    Sketcher.Constraint("DistanceX", 3, 2, 3, 1, Q("14 mm")),
    Sketcher.Constraint("DistanceY", 2, 1, 2, 2, Q("3 mm")),
    Sketcher.Constraint("DistanceX", 0, 2, -1, 1, Q("36 mm")),
    Sketcher.Constraint("DistanceY", -1, 1, 0, 2, Q("1 mm")),
])
pad5 = body.newObject("PartDesign::Pad", "Pad004")
pad5.Profile = sketch9
pad5.Length = 1

sketch10 = body.newObject("Sketcher::SketchObject", "Sketch009")
sketch10.AttachmentSupport = (doc.getObject("YZ_Plane"), [""])
sketch10.MapMode = "FlatFace"
sketch10.AttachmentOffset = App.Placement(App.Vector(0, 0, -34.8), App.Rotation())
add_polygon(sketch10, [(-36, 19), (-36, 1), (-18, 1), (-18, 4), (-32, 4), (-32, 19)])
sketch10.addConstraint([
    Sketcher.Constraint("Vertical", 0),
    Sketcher.Constraint("Horizontal", 1),
    Sketcher.Constraint("Vertical", 2),
    Sketcher.Constraint("Horizontal", 3),
    Sketcher.Constraint("Vertical", 4),
    Sketcher.Constraint("Horizontal", 5),
    Sketcher.Constraint("Equal", 1, 0),
    Sketcher.Constraint("DistanceX", 1, 1, 1, 2, Q("18 mm")),
    Sketcher.Constraint("DistanceX", 3, 2, 3, 1, Q("14 mm")),
    Sketcher.Constraint("DistanceY", 2, 1, 2, 2, Q("3 mm")),
    Sketcher.Constraint("DistanceX", 0, 2, -1, 1, Q("36 mm")),
    Sketcher.Constraint("DistanceY", -1, 1, 0, 2, Q("1 mm")),
])
pad6 = body.newObject("PartDesign::Pad", "Pad005")
pad6.Profile = sketch10
pad6.Length = 1
pad6.Reversed = True

sketch11 = body.newObject("Sketcher::SketchObject", "Sketch010")
sketch11.AttachmentSupport = (doc.getObject("YZ_Plane"), [""])
sketch11.MapMode = "FlatFace"
sketch11.AttachmentOffset = App.Placement(App.Vector(0, 0, -35.8), App.Rotation())
add_polygon(sketch11, [(-36, 19), (-36, 1), (-18, 1), (-18, 19)])
sketch11.addConstraint([
    Sketcher.Constraint("Vertical", 0),
    Sketcher.Constraint("Horizontal", 1),
    Sketcher.Constraint("Vertical", 2),
    Sketcher.Constraint("Horizontal", 3),
    Sketcher.Constraint("Equal", 3, 0),
    Sketcher.Constraint("DistanceX", 1, 1, 1, 2, Q("18 mm")),
    Sketcher.Constraint("DistanceX", 0, 2, -1, 1, Q("36 mm")),
    Sketcher.Constraint("DistanceY", -1, 1, 0, 2, Q("1 mm")),
])
pad7 = body.newObject("PartDesign::Pad", "Pad006")
pad7.Profile = sketch11
pad7.Length = 14
pad7.Reversed = True

sketch12 = body.newObject("Sketcher::SketchObject", "Sketch011")
sketch12.AttachmentSupport = (doc.getObject("YZ_Plane"), [""])
sketch12.MapMode = "FlatFace"
sketch12.AttachmentOffset = App.Placement(App.Vector(0, 0, 35.8), App.Rotation())
add_polygon(sketch12, [(-36, 19), (-36, 1), (-18, 1), (-18, 19)])
sketch12.addConstraint([
    Sketcher.Constraint("Vertical", 0),
    Sketcher.Constraint("Horizontal", 1),
    Sketcher.Constraint("Vertical", 2),
    Sketcher.Constraint("Horizontal", 3),
    Sketcher.Constraint("Equal", 3, 0),
    Sketcher.Constraint("DistanceX", 1, 1, 1, 2, Q("18 mm")),
    Sketcher.Constraint("DistanceX", 0, 2, -1, 1, Q("36 mm")),
    Sketcher.Constraint("DistanceY", -1, 1, 0, 2, Q("1 mm")),
])
pad8 = body.newObject("PartDesign::Pad", "Pad007")
pad8.Profile = sketch12
pad8.Length = 14

sketch13 = body.newObject("Sketcher::SketchObject", "Sketch012")
sketch13.AttachmentSupport = (doc.getObject("YZ_Plane"), [""])
sketch13.MapMode = "FlatFace"
sketch13.addGeometry([
    Part.BSplineCurve([App.Vector(-21, 17, 0), App.Vector(-18, 17, 0), App.Vector(-18, 10.5, 0)], [3, 3], [0, 1], False, 2, [1, 0.5, 1], False),
    Part.LineSegment(App.Vector(-18, 10.5, 0), App.Vector(-18, 1, 0)),
    Part.LineSegment(App.Vector(-18, 1, 0), App.Vector(-15, 1, 0)),
    Part.LineSegment(App.Vector(-15, 1, 0), App.Vector(-18, 17, 0)),
    Part.LineSegment(App.Vector(-18, 17, 0), App.Vector(-21, 17, 0)),
], False)
sketch13.addConstraint([
    Sketcher.Constraint("Block", 0),
    Sketcher.Constraint("Coincident", 0, 2, 1, 1),
    Sketcher.Constraint("Coincident", 1, 2, 2, 1),
    Sketcher.Constraint("Coincident", 2, 2, 3, 1),
    Sketcher.Constraint("Coincident", 3, 2, 4, 1),
    Sketcher.Constraint("Coincident", 4, 2, 0, 1),
    Sketcher.Constraint("Vertical", 1),
    Sketcher.Constraint("Horizontal", 2),
    Sketcher.Constraint("Horizontal", 4),
    Sketcher.Constraint("DistanceX", 2, 1, 2, 2, Q("3 mm")),
    Sketcher.Constraint("DistanceX", 4, 2, 4, 1, Q("3 mm")),
    Sketcher.Constraint("DistanceY", 1, 2, 1, 1, Q("9.5 mm")),
])
pad9 = body.newObject("PartDesign::Pad", "Pad008")
pad9.Profile = sketch13
pad9.Type = "TwoLengths"
pad9.Length = 15
pad9.Length2 = 15

doc.recompute()
